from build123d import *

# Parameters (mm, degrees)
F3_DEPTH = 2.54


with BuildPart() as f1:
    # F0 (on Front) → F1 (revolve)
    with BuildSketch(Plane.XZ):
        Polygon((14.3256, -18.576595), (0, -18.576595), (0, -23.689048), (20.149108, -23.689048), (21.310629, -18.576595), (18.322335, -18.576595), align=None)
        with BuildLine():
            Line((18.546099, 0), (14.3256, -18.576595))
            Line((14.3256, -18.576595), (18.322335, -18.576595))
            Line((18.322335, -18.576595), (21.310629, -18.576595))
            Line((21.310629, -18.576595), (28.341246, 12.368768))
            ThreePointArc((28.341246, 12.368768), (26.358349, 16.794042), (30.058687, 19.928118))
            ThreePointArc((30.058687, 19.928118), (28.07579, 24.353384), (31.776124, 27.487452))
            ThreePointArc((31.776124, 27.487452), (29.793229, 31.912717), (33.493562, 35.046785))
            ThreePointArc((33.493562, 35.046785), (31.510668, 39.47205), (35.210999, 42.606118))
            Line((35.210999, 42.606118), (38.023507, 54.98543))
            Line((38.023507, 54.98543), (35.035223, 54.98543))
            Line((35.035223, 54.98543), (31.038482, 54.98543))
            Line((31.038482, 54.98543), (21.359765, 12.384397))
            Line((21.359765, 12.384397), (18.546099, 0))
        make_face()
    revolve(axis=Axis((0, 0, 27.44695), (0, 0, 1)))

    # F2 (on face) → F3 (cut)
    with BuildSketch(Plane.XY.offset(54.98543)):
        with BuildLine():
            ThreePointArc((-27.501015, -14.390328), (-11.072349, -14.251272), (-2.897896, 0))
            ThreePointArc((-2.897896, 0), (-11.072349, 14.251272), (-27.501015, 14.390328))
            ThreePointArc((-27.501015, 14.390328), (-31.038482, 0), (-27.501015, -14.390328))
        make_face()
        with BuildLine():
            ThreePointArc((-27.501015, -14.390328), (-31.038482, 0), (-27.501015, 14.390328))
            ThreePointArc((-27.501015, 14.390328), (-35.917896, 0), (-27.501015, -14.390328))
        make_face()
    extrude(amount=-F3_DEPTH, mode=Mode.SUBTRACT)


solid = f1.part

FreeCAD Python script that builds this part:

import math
import FreeCAD as App
import Part
import Sketcher

V = App.Vector
Q = App.Units.Quantity

doc = App.newDocument("Part")
body = doc.addObject("PartDesign::Body", "Body")

# Sketch on XZ plane
sketch1 = body.newObject("Sketcher::SketchObject", "Sketch")
sketch1.AttachmentSupport = (doc.getObject("XZ_Plane"), [""])
sketch1.MapMode = "FlatFace"
sketch1.addGeometry(Part.LineSegment(V(0, -18.6, 0), V(0, -23.7, 0)), False)
sketch1.addGeometry(Part.LineSegment(V(0, -23.7, 0), V(20.1, -23.7, 0)), False)
sketch1.addGeometry(Part.LineSegment(V(20.1, -23.7, 0), V(21.3, -18.6, 0)), False)
sketch1.addGeometry(Part.LineSegment(V(21.3, -18.6, 0), V(28.3, 12.4, 0)), False)
sketch1.addGeometry(Part.ArcOfCircle(Part.Circle(V(30.3, 15.9, 0), V(0, 0, 1), 4), math.radians(93), math.radians(241)), False)
sketch1.addGeometry(Part.ArcOfCircle(Part.Circle(V(32, 23.5, 0), V(0, 0, 1), 4), math.radians(93), math.radians(241)), False)
sketch1.addGeometry(Part.ArcOfCircle(Part.Circle(V(33.7, 31, 0), V(0, 0, 1), 4), math.radians(93), math.radians(241)), False)
sketch1.addGeometry(Part.ArcOfCircle(Part.Circle(V(35.4, 38.6, 0), V(0, 0, 1), 4), math.radians(93), math.radians(241)), False)
sketch1.addGeometry(Part.LineSegment(V(35.2, 42.6, 0), V(38, 55, 0)), False)
sketch1.addGeometry(Part.LineSegment(V(38, 55, 0), V(31, 55, 0)), False)
sketch1.addGeometry(Part.LineSegment(V(31, 55, 0), V(21.4, 12.4, 0)), False)
sketch1.addGeometry(Part.LineSegment(V(21.4, 12.4, 0), V(18.5, 0, 0)), False)
sketch1.addGeometry(Part.LineSegment(V(18.5, 0, 0), V(14.3, -18.6, 0)), False)
sketch1.addGeometry(Part.LineSegment(V(14.3, -18.6, 0), V(0, -18.6, 0)), False)
sketch1.addConstraint(Sketcher.Constraint("Coincident", 0, 2, 1, 1))
sketch1.addConstraint(Sketcher.Constraint("Coincident", 1, 2, 2, 1))
sketch1.addConstraint(Sketcher.Constraint("Coincident", 2, 2, 3, 1))
sketch1.addConstraint(Sketcher.Constraint("Coincident", 3, 2, 4, 2))
sketch1.addConstraint(Sketcher.Constraint("Coincident", 4, 1, 5, 2))
sketch1.addConstraint(Sketcher.Constraint("Coincident", 5, 1, 6, 2))
sketch1.addConstraint(Sketcher.Constraint("Coincident", 6, 1, 7, 2))
sketch1.addConstraint(Sketcher.Constraint("Coincident", 7, 1, 8, 1))
sketch1.addConstraint(Sketcher.Constraint("Coincident", 8, 2, 9, 1))
sketch1.addConstraint(Sketcher.Constraint("Coincident", 9, 2, 10, 1))
sketch1.addConstraint(Sketcher.Constraint("Coincident", 10, 2, 11, 1))
sketch1.addConstraint(Sketcher.Constraint("Coincident", 11, 2, 12, 1))
sketch1.addConstraint(Sketcher.Constraint("Coincident", 12, 2, 13, 1))
sketch1.addConstraint(Sketcher.Constraint("Coincident", 13, 2, 0, 1))
sketch1.addConstraint(Sketcher.Constraint("Vertical", 0))
sketch1.addConstraint(Sketcher.Constraint("Horizontal", 1))
sketch1.addConstraint(Sketcher.Constraint("Horizontal", 9))
sketch1.addConstraint(Sketcher.Constraint("Horizontal", 13))
sketch1.addConstraint(Sketcher.Constraint("Equal", 5, 6))
sketch1.addConstraint(Sketcher.Constraint("Equal", 6, 7))
sketch1.addConstraint(Sketcher.Constraint("PointOnObject", 0, 2, -2))
sketch1.addConstraint(Sketcher.Constraint("PointOnObject", 11, 2, -1))
sketch1.addConstraint(Sketcher.Constraint("Parallel", 2, 3))
sketch1.addConstraint(Sketcher.Constraint("Parallel", 3, 8))
sketch1.addConstraint(Sketcher.Constraint("Parallel", 8, 10))
sketch1.addConstraint(Sketcher.Constraint("Parallel", 10, 11))
sketch1.addConstraint(Sketcher.Constraint("Parallel", 11, 12))
sketch1.addConstraint(Sketcher.Constraint("Horizontal", 2, 2, 12, 2))
sketch1.addConstraint(Sketcher.Constraint("Distance", 11, Q("0.5 in")))
sketch1.addConstraint(Sketcher.Constraint("Angle", 2, Q("77.199998 deg")))
sketch1.addConstraint(Sketcher.Constraint("Distance", 12, Q("0.75 in")))
sketch1.addConstraint(Sketcher.Constraint("DistanceX", 13, 2, 13, 1, Q("0.564 in")))
sketch1.addConstraint(Sketcher.Constraint("Radius", 4, 4.034775))
sketch1.addConstraint(Sketcher.Constraint("Radius", 5, 4.034764))
sketch1.addConstraint(Sketcher.Constraint("DistanceX", -1, 1, 7, 1, 35.210999))
sketch1.addConstraint(Sketcher.Constraint("DistanceX", 2, 2, 6, 3, 12.417098))
sketch1.addConstraint(Sketcher.Constraint("DistanceX", 4, 1, 5, 3, 1.951601))
sketch1.addConstraint(Sketcher.Constraint("Distance", 2, 5.242738))
sketch1.addConstraint(Sketcher.Constraint("DistanceX", 1, 1, 1, 2, 20.149108))
sketch1.addConstraint(Sketcher.Constraint("DistanceX", 9, 2, 9, 1, 6.985025))
sketch1.addConstraint(Sketcher.Constraint("DistanceY", -1, 1, 5, 3, 23.459488))
sketch1.addConstraint(Sketcher.Constraint("DistanceY", -1, 1, 6, 3, 31.018821))
sketch1.addConstraint(Sketcher.Constraint("DistanceY", -1, 1, 5, 1, 27.487452))
sketch1.addConstraint(Sketcher.Constraint("DistanceY", -1, 1, 8, 2, 54.98543))
sketch1.addConstraint(Sketcher.Constraint("DistanceX", 4, 3, 5, 3, 1.717431))
sketch1.addConstraint(Sketcher.Constraint("DistanceX", 6, 3, 7, 3, 1.717439))
revolution = body.newObject("PartDesign::Revolution", "Revolution")
revolution.Profile = sketch1
revolution.ReferenceAxis = (sketch1, ["V_Axis"])
revolution.Angle = 360

# Sketch on XY plane
sketch2 = body.newObject("Sketcher::SketchObject", "Sketch001")
sketch2.AttachmentSupport = (doc.getObject("XY_Plane"), [""])
sketch2.MapMode = "FlatFace"
sketch2.AttachmentOffset = App.Placement(V(0, 0, 54.98543), App.Rotation())
sketch2.addGeometry(Part.ArcOfCircle(Part.Circle(V(-19, 0, 0), V(0, 0, 1), 17), math.radians(-119), math.radians(0)), False)
sketch2.addGeometry(Part.ArcOfCircle(Part.Circle(V(-19, 0, 0), V(0, 0, 1), 17), math.radians(0), math.radians(119)), False)
sketch2.addGeometry(Part.ArcOfCircle(Part.Circle(V(-19, 0, 0), V(0, 0, 1), 17), math.radians(119), math.radians(241)), False)
sketch2.addConstraint(Sketcher.Constraint("Tangent", 0, 2, 1, 1))
sketch2.addConstraint(Sketcher.Constraint("Tangent", 1, 2, 2, 1))
sketch2.addConstraint(Sketcher.Constraint("Tangent", 2, 2, 0, 1))
sketch2.addConstraint(Sketcher.Constraint("Symmetric", 1, 2, 2, 2, -1))
sketch2.addConstraint(Sketcher.Constraint("PointOnObject", 0, 2, -1))
sketch2.addConstraint(Sketcher.Constraint("Radius", 0, Q("0.65 in")))
sketch2.addConstraint(Sketcher.Constraint("DistanceY", -1, 1, 1, 2, 14.390328))
sketch2.addConstraint(Sketcher.Constraint("DistanceX", 0, 3, -1, 1, 19.407897))
pocket1 = body.newObject("PartDesign::Pocket", "Pocket")
pocket1.Profile = sketch2
pocket1.Length = Q("0.1 in")

doc.recompute()
